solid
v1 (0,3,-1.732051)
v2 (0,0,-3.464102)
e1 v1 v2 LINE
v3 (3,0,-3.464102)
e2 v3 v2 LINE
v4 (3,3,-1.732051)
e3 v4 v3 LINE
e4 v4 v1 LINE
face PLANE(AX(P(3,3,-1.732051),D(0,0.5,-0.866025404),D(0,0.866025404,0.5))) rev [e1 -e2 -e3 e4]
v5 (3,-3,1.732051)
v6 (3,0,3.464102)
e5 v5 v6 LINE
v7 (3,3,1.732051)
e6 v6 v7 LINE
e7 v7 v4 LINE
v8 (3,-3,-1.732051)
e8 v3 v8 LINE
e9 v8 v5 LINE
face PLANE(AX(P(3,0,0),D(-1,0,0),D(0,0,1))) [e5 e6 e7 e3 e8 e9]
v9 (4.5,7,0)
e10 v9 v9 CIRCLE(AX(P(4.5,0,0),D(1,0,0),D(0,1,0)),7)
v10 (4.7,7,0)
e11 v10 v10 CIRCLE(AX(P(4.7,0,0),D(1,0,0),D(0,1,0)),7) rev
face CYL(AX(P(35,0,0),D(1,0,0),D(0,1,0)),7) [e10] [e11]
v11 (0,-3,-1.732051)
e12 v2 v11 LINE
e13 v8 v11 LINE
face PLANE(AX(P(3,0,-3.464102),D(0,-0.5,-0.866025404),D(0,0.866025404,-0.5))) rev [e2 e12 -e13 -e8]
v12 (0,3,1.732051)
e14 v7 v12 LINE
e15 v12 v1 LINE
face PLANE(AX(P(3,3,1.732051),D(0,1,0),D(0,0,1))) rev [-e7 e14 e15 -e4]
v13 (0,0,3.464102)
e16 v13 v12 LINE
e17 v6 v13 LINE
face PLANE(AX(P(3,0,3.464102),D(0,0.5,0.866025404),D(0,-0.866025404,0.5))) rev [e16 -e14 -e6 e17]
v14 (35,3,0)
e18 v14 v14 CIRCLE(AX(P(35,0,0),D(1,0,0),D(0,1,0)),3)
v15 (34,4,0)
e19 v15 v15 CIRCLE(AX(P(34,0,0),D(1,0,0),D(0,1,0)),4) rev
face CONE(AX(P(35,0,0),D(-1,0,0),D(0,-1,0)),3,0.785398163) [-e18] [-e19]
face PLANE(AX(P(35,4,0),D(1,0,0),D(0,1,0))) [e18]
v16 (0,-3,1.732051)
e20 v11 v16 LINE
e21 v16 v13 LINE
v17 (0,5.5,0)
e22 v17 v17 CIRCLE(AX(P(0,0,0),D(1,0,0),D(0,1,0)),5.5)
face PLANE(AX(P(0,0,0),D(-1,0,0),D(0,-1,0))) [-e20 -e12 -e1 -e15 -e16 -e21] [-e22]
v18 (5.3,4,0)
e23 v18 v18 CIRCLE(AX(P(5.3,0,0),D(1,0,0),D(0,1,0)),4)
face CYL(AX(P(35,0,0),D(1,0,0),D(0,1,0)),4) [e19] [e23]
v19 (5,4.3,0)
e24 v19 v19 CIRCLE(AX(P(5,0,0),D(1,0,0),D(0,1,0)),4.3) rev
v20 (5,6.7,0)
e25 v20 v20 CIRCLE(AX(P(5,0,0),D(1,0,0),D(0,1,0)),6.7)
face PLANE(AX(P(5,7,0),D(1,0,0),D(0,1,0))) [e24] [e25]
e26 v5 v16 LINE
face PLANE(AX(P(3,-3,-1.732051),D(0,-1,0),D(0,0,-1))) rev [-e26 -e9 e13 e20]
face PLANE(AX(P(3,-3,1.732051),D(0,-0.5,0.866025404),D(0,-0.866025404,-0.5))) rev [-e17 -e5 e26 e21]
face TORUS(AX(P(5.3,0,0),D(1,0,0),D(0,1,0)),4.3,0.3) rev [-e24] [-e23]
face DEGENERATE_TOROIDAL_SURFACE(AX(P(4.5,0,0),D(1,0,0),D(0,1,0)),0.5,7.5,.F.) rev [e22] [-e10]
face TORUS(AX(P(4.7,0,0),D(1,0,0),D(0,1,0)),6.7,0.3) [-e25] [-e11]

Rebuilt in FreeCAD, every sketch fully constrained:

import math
import FreeCAD as App
import Part
import Sketcher
from FreeCAD import Vector
Q = App.Units.Quantity


def edges_at(feature, points):
    """Names of the edges that pass closest to the given points."""
    edges = feature.Shape.Edges
    near = lambda p: min(range(len(edges)), key=lambda i: edges[i].distToShape(Part.Vertex(*p))[0])
    return sorted({f"Edge{near(p) + 1}" for p in points})

doc = App.newDocument("Part")
body = doc.addObject("PartDesign::Body", "Body")

sketch1 = body.newObject("Sketcher::SketchObject", "Sketch")
sketch1.AttachmentSupport = (doc.getObject("XY_Plane"), [""])
sketch1.MapMode = "FlatFace"
sketch1.addGeometry([
    Part.LineSegment(Vector(0, 5.5, 0), Vector(0, 0, 0)),
    Part.LineSegment(Vector(0, 0, 0), Vector(35, 0, 0)),
    Part.LineSegment(Vector(35, 0, 0), Vector(35, 4, 0)),
    Part.LineSegment(Vector(35, 4, 0), Vector(5, 4, 0)),
    Part.LineSegment(Vector(5, 4, 0), Vector(5, 7, 0)),
    Part.LineSegment(Vector(5, 7, 0), Vector(4.5, 7, 0)),
    Part.ArcOfCircle(Part.Circle(Vector(4.5, -0.5, 0), Vector(0, 0, 1), 7.5), math.radians(90), math.radians(127)),
], False)
sketch1.addConstraint([
    Sketcher.Constraint("Coincident", 0, 2, 1, 1),
    Sketcher.Constraint("Coincident", 1, 2, 2, 1),
    Sketcher.Constraint("Coincident", 2, 2, 3, 1),
    Sketcher.Constraint("Coincident", 3, 2, 4, 1),
    Sketcher.Constraint("Coincident", 4, 2, 5, 1),
    Sketcher.Constraint("Tangent", 5, 2, 6, 1),
    Sketcher.Constraint("Coincident", 6, 2, 0, 1),
    Sketcher.Constraint("Vertical", 0),
    Sketcher.Constraint("Horizontal", 1),
    Sketcher.Constraint("Vertical", 2),
    Sketcher.Constraint("Horizontal", 3),
    Sketcher.Constraint("Vertical", 4),
    Sketcher.Constraint("Horizontal", 5),
    Sketcher.Constraint("Coincident", 0, 2, -1, 1),
    Sketcher.Constraint("Radius", 6, Q("7.5 mm")),
    Sketcher.Constraint("DistanceX", 1, 1, 1, 2, Q("35 mm")),
    Sketcher.Constraint("DistanceX", 3, 2, 3, 1, Q("30 mm")),
    Sketcher.Constraint("DistanceY", 2, 1, 2, 2, Q("4 mm")),
    Sketcher.Constraint("DistanceY", 4, 1, 4, 2, Q("3 mm")),
    Sketcher.Constraint("DistanceX", 5, 2, 5, 1, Q("0.5 mm")),
])
revolution = body.newObject("PartDesign::Revolution", "Revolution")
revolution.Profile = sketch1
revolution.ReferenceAxis = (sketch1, ["H_Axis"])
revolution.Angle = 360

sketch2 = body.newObject("Sketcher::SketchObject", "Sketch001")
sketch2.AttachmentSupport = (doc.getObject("YZ_Plane"), [""])
sketch2.MapMode = "FlatFace"
sketch2.addGeometry([
    Part.LineSegment(Vector(3, 1.7, 0), Vector(3, -1.7, 0)),
    Part.LineSegment(Vector(3, -1.7, 0), Vector(0, -3.5, 0)),
    Part.LineSegment(Vector(0, -3.5, 0), Vector(-3, -1.7, 0)),
    Part.LineSegment(Vector(-3, -1.7, 0), Vector(-3, 1.7, 0)),
    Part.LineSegment(Vector(-3, 1.7, 0), Vector(0, 3.5, 0)),
    Part.LineSegment(Vector(0, 3.5, 0), Vector(3, 1.7, 0)),
], False)
sketch2.addConstraint([
    Sketcher.Constraint("Coincident", 0, 2, 1, 1),
    Sketcher.Constraint("Coincident", 1, 2, 2, 1),
    Sketcher.Constraint("Coincident", 2, 2, 3, 1),
    Sketcher.Constraint("Coincident", 3, 2, 4, 1),
    Sketcher.Constraint("Coincident", 4, 2, 5, 1),
    Sketcher.Constraint("Coincident", 5, 2, 0, 1),
    Sketcher.Constraint("Vertical", 0),
    Sketcher.Constraint("Vertical", 3),
    Sketcher.Constraint("Symmetric", 0, 2, 3, 2, -1, 1),
    Sketcher.Constraint("Symmetric", 1, 2, 4, 2, -1, 1),
    Sketcher.Constraint("PointOnObject", 1, 2, -2),
    Sketcher.Constraint("Parallel", 2, 5),
    Sketcher.Constraint("Horizontal", 0, 2, 2, 2),
    Sketcher.Constraint("Angle", 1, Q("-150 deg")),
    Sketcher.Constraint("DistanceX", -1, 1, 0, 2, Q("3 mm")),
    Sketcher.Constraint("DistanceY", 0, 2, 0, 1, Q("3.464102 mm")),
])
pocket1 = body.newObject("PartDesign::Pocket", "Pocket")
pocket1.Profile = sketch2
pocket1.Length = 3
pocket1.Reversed = True
doc.recompute()

fillet = body.newObject("PartDesign::Fillet", "Fillet")
fillet.Base = (pocket1, edges_at(pocket1, [(5, -4, 0), (5, -7, 0)]))
fillet.Radius = 0.3
doc.recompute()

chamfer = body.newObject("PartDesign::Chamfer", "Chamfer")
chamfer.Base = (fillet, edges_at(fillet, [(35, -4, 0)]))
chamfer.Size = 1

doc.recompute()
